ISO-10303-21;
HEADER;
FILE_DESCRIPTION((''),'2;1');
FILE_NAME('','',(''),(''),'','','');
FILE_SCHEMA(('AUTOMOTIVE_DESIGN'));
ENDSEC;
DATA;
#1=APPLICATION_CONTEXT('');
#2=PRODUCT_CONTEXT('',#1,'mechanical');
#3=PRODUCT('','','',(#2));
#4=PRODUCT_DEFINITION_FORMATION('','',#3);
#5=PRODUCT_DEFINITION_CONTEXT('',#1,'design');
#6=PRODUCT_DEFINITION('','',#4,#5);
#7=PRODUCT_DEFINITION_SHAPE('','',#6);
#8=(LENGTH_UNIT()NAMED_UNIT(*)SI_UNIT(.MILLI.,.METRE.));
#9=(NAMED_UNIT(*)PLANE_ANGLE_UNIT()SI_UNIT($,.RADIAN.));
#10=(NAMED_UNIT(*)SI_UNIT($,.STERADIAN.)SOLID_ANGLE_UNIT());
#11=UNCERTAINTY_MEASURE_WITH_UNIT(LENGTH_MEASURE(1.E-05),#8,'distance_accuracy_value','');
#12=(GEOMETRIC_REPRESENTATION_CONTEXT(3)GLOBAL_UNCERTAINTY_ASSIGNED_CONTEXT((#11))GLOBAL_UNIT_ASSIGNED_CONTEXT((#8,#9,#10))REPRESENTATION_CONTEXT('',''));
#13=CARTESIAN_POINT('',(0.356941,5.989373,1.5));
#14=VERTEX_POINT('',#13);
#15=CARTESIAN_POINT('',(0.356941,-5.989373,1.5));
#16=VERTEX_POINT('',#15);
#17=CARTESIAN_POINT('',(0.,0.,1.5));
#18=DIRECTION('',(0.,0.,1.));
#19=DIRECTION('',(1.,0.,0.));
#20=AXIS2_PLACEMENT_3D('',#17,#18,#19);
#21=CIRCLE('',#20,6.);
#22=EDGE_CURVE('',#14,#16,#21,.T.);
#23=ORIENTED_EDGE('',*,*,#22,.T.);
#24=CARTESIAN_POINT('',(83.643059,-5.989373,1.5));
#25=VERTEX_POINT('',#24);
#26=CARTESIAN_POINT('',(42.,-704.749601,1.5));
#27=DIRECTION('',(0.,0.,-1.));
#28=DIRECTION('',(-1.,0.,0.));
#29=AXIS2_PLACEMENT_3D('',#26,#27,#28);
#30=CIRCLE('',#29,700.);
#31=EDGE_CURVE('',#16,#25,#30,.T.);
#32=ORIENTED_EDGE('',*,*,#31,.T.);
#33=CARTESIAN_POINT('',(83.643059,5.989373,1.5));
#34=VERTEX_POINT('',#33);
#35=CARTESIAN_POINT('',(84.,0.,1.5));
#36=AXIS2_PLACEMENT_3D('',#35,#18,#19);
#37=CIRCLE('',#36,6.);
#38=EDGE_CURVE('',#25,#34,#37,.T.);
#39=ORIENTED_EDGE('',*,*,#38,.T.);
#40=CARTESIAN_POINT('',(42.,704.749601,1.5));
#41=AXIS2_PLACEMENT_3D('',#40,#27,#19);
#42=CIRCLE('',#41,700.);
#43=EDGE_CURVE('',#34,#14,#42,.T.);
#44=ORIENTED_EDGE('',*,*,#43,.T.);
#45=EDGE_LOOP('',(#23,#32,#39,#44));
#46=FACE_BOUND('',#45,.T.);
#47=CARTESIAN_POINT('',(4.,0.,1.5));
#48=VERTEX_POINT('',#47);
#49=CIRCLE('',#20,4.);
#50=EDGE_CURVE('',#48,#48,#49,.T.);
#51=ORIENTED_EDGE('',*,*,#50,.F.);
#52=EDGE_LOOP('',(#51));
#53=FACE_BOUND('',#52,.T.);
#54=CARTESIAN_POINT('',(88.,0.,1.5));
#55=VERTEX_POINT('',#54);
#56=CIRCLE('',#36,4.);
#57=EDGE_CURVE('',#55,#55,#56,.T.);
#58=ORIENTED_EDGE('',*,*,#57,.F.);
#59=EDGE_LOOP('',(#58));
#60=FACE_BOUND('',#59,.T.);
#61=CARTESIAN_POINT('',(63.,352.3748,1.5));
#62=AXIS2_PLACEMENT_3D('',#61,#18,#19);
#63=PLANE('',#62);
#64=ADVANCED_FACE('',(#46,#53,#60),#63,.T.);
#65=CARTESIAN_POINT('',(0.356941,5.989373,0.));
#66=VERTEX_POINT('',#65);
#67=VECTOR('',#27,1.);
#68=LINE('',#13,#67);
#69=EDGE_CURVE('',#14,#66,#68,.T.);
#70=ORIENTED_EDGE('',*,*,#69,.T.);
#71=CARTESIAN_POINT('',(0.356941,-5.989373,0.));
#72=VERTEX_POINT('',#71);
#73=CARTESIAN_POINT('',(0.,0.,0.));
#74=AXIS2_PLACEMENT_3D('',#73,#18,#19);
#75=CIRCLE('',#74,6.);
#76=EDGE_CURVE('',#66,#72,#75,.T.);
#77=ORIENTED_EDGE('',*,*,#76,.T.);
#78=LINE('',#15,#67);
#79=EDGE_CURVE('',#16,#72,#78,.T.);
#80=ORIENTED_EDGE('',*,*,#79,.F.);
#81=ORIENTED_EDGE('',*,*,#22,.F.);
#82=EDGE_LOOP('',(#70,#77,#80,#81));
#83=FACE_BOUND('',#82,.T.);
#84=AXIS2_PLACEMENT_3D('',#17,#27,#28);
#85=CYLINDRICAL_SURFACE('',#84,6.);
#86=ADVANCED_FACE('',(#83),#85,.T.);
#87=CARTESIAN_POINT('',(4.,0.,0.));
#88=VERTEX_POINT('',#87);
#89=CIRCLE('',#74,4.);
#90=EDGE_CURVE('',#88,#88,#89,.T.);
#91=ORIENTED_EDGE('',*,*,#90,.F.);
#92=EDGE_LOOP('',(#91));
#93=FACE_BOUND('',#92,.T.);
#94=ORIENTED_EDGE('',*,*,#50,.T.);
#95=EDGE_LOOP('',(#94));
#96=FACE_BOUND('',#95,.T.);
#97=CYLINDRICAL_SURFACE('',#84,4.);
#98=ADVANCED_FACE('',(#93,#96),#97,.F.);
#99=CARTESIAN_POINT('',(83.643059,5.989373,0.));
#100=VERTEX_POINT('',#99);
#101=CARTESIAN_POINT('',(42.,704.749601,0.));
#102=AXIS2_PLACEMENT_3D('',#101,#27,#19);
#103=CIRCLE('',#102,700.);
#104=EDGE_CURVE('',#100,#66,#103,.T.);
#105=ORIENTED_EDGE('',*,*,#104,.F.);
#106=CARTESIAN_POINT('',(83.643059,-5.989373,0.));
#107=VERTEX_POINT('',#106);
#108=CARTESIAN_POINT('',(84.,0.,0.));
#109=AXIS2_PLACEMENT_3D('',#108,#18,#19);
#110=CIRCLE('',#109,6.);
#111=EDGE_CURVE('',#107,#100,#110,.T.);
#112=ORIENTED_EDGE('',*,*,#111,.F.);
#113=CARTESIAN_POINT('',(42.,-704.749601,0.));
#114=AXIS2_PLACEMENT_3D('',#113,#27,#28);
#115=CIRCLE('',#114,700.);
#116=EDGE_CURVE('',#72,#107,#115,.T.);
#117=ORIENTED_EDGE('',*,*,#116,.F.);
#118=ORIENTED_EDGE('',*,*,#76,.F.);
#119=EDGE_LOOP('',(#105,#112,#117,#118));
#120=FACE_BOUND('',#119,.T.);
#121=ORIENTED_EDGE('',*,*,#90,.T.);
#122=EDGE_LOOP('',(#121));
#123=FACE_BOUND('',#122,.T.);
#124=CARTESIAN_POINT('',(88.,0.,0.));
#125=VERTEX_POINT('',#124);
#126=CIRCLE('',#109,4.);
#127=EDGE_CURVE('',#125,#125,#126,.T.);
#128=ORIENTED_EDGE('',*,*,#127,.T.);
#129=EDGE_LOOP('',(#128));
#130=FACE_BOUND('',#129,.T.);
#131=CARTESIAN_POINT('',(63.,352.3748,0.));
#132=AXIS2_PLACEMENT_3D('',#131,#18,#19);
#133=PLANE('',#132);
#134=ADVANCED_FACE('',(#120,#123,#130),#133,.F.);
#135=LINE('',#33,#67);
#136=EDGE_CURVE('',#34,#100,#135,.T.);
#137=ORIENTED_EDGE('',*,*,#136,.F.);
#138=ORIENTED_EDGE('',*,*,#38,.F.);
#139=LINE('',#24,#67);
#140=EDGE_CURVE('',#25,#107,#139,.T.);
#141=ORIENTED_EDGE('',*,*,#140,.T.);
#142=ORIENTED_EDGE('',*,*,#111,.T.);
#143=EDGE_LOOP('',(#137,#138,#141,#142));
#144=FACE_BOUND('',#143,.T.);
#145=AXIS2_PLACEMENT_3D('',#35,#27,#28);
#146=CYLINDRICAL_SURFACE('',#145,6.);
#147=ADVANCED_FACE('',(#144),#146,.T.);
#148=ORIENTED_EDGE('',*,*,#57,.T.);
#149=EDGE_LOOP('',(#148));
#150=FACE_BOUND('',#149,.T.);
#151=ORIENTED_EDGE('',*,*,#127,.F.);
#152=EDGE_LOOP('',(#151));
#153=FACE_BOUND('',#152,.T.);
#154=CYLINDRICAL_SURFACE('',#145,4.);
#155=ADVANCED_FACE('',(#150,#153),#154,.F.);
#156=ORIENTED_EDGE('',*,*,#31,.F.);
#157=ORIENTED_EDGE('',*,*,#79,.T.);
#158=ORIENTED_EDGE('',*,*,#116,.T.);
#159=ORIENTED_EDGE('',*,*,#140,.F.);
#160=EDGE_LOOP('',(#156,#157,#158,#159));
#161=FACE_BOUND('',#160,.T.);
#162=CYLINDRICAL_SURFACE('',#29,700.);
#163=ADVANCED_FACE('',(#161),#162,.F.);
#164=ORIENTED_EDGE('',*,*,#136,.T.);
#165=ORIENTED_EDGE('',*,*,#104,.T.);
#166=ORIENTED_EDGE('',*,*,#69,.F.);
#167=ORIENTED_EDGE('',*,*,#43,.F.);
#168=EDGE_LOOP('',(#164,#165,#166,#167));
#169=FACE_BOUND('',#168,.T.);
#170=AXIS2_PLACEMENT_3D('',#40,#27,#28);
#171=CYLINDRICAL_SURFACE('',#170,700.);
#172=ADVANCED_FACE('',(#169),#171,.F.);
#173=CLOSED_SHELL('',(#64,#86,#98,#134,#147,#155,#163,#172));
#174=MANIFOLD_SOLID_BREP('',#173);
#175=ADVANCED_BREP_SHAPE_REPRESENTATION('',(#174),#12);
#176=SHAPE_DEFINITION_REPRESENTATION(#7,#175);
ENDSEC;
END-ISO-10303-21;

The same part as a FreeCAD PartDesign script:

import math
import FreeCAD as App
import Part
import Sketcher

doc = App.newDocument("Part")
body = doc.addObject("PartDesign::Body", "Body")

sketch1 = body.newObject("Sketcher::SketchObject", "Sketch")
sketch1.AttachmentSupport = (doc.getObject("XY_Plane"), [""])
sketch1.MapMode = "FlatFace"
sketch1.addGeometry(Part.ArcOfCircle(Part.Circle(App.Vector(0, 0, 0), App.Vector(0, 0, 1), 6), math.radians(87), math.radians(273)), False)
sketch1.addGeometry(Part.ArcOfCircle(Part.Circle(App.Vector(42, -704.7, 0), App.Vector(0, 0, 1), 700), math.radians(86.59), math.radians(93.41)), False)
sketch1.addGeometry(Part.ArcOfCircle(Part.Circle(App.Vector(84, 0, 0), App.Vector(0, 0, 1), 6), math.radians(-93), math.radians(93)), False)
sketch1.addGeometry(Part.ArcOfCircle(Part.Circle(App.Vector(42, 704.7, 0), App.Vector(0, 0, 1), 700), math.radians(-93.41), math.radians(-86.59)), False)
sketch1.addGeometry(Part.Circle(App.Vector(0, 0, 0), App.Vector(0, 0, 1), 4), False)
sketch1.addGeometry(Part.Circle(App.Vector(84, 0, 0), App.Vector(0, 0, 1), 4), False)
sketch1.addConstraint(Sketcher.Constraint("Tangent", 0, 2, 1, 2))
sketch1.addConstraint(Sketcher.Constraint("Tangent", 1, 1, 2, 1))
sketch1.addConstraint(Sketcher.Constraint("Tangent", 2, 2, 3, 2))
sketch1.addConstraint(Sketcher.Constraint("Tangent", 3, 1, 0, 1))
sketch1.addConstraint(Sketcher.Constraint("Coincident", 0, 3, -1, 1))
sketch1.addConstraint(Sketcher.Constraint("Coincident", 4, 3, -1, 1))
sketch1.addConstraint(Sketcher.Constraint("Coincident", 5, 3, 2, 3))
sketch1.addConstraint(Sketcher.Constraint("Equal", 0, 2))
sketch1.addConstraint(Sketcher.Constraint("Equal", 1, 3))
sketch1.addConstraint(Sketcher.Constraint("Equal", 4, 5))
sketch1.addConstraint(Sketcher.Constraint("PointOnObject", 2, 3, -1))
sketch1.addConstraint(Sketcher.Constraint("Diameter", 4, 8.0))
sketch1.addConstraint(Sketcher.Constraint("Radius", 0, 6.0))
sketch1.addConstraint(Sketcher.Constraint("Radius", 1, 700.0))
sketch1.addConstraint(Sketcher.Constraint("DistanceX", -1, 1, 1, 3, 42.0))
pad1 = body.newObject("PartDesign::Pad", "Pad")
pad1.Profile = sketch1
pad1.Length = 1.5

doc.recompute()
